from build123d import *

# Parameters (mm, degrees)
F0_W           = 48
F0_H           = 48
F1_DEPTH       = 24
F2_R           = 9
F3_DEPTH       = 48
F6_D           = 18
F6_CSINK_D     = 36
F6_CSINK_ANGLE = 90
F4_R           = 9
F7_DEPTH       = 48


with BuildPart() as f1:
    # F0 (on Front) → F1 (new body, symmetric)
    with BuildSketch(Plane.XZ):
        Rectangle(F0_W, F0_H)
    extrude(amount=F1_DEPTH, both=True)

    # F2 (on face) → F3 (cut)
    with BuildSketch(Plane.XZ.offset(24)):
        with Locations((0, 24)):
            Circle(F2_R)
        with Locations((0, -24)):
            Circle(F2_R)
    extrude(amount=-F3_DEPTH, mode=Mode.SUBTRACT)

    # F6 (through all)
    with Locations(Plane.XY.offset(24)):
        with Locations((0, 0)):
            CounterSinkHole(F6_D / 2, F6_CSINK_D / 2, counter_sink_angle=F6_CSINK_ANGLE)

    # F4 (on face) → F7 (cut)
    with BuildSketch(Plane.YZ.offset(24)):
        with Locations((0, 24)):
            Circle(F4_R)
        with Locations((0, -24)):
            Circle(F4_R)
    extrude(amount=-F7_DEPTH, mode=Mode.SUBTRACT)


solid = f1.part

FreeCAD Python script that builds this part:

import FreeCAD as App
import Part
import Sketcher
Q = App.Units.Quantity

doc = App.newDocument("Part")
body = doc.addObject("PartDesign::Body", "Body")

# Sketch on XZ plane
sketch1 = body.newObject("Sketcher::SketchObject", "Sketch")
sketch1.AttachmentSupport = (doc.getObject("XZ_Plane"), [""])
sketch1.MapMode = "FlatFace"
sketch1.addGeometry([
    Part.LineSegment(App.Vector(-24, 24, 0), App.Vector(-24, -24, 0)),
    Part.LineSegment(App.Vector(-24, -24, 0), App.Vector(24, -24, 0)),
    Part.LineSegment(App.Vector(24, -24, 0), App.Vector(24, 24, 0)),
    Part.LineSegment(App.Vector(24, 24, 0), App.Vector(-24, 24, 0)),
], False)
sketch1.addConstraint([
    Sketcher.Constraint("Coincident", 0, 2, 1, 1),
    Sketcher.Constraint("Coincident", 1, 2, 2, 1),
    Sketcher.Constraint("Coincident", 2, 2, 3, 1),
    Sketcher.Constraint("Coincident", 3, 2, 0, 1),
    Sketcher.Constraint("Vertical", 0),
    Sketcher.Constraint("Horizontal", 1),
    Sketcher.Constraint("Vertical", 2),
    Sketcher.Constraint("Horizontal", 3),
    Sketcher.Constraint("Symmetric", 0, 2, 2, 2, -1, 1),
    Sketcher.Constraint("Equal", 3, 0),
    Sketcher.Constraint("DistanceX", 1, 1, 1, 2, Q("48 mm")),
])
pad1 = body.newObject("PartDesign::Pad", "Pad")
pad1.Profile = sketch1
pad1.Length = 48
pad1.Midplane = True

# Sketch on XZ plane
sketch2 = body.newObject("Sketcher::SketchObject", "Sketch001")
sketch2.AttachmentSupport = (doc.getObject("XZ_Plane"), [""])
sketch2.MapMode = "FlatFace"
sketch2.AttachmentOffset = App.Placement(App.Vector(0, 0, 24), App.Rotation())
sketch2.addGeometry([
    Part.Circle(App.Vector(0, 24, 0), App.Vector(0, 0, 1), 9),
    Part.Circle(App.Vector(0, -24, 0), App.Vector(0, 0, 1), 9),
], False)
sketch2.addConstraint([
    Sketcher.Constraint("Equal", 0, 1),
    Sketcher.Constraint("Symmetric", 0, 3, 1, 3, -1, 1),
    Sketcher.Constraint("PointOnObject", 0, 3, -2),
    Sketcher.Constraint("Diameter", 0, Q("18 mm")),
    Sketcher.Constraint("DistanceY", -1, 1, 0, 3, Q("24 mm")),
])
pocket1 = body.newObject("PartDesign::Pocket", "Pocket")
pocket1.Profile = sketch2
pocket1.Length = 48

# Sketch on XY plane
sketch3 = body.newObject("Sketcher::SketchObject", "Sketch002")
sketch3.AttachmentSupport = (doc.getObject("XY_Plane"), [""])
sketch3.MapMode = "FlatFace"
sketch3.AttachmentOffset = App.Placement(App.Vector(0, 0, 24), App.Rotation())
sketch3.addGeometry(Part.Circle(App.Vector(0, 0, 0), App.Vector(0, 0, 1), 9), False)
sketch3.addConstraint([
    Sketcher.Constraint("Coincident", 0, 3, -1, 1),
    Sketcher.Constraint("Diameter", 0, Q("18 mm")),
])
doc.recompute()
hole = body.newObject("PartDesign::Hole", "Hole")
hole.Profile = sketch3
hole.ThreadType = "None"
hole.Diameter = 18
hole.DepthType = "ThroughAll"
hole.HoleCutType = "Countersink"
hole.HoleCutDiameter = 36
hole.HoleCutCountersinkAngle = 90

# Sketch on YZ plane
sketch4 = body.newObject("Sketcher::SketchObject", "Sketch003")
sketch4.AttachmentSupport = (doc.getObject("YZ_Plane"), [""])
sketch4.MapMode = "FlatFace"
sketch4.AttachmentOffset = App.Placement(App.Vector(0, 0, 24), App.Rotation())
sketch4.addGeometry([
    Part.Circle(App.Vector(0, 24, 0), App.Vector(0, 0, 1), 9),
    Part.Circle(App.Vector(0, -24, 0), App.Vector(0, 0, 1), 9),
], False)
sketch4.addConstraint([
    Sketcher.Constraint("Equal", 0, 1),
    Sketcher.Constraint("Symmetric", 0, 3, 1, 3, -1, 1),
    Sketcher.Constraint("PointOnObject", 0, 3, -2),
    Sketcher.Constraint("Diameter", 0, Q("18 mm")),
    Sketcher.Constraint("DistanceY", -1, 1, 0, 3, Q("24 mm")),
])
pocket2 = body.newObject("PartDesign::Pocket", "Pocket001")
pocket2.Profile = sketch4
pocket2.Length = 48

doc.recompute()
